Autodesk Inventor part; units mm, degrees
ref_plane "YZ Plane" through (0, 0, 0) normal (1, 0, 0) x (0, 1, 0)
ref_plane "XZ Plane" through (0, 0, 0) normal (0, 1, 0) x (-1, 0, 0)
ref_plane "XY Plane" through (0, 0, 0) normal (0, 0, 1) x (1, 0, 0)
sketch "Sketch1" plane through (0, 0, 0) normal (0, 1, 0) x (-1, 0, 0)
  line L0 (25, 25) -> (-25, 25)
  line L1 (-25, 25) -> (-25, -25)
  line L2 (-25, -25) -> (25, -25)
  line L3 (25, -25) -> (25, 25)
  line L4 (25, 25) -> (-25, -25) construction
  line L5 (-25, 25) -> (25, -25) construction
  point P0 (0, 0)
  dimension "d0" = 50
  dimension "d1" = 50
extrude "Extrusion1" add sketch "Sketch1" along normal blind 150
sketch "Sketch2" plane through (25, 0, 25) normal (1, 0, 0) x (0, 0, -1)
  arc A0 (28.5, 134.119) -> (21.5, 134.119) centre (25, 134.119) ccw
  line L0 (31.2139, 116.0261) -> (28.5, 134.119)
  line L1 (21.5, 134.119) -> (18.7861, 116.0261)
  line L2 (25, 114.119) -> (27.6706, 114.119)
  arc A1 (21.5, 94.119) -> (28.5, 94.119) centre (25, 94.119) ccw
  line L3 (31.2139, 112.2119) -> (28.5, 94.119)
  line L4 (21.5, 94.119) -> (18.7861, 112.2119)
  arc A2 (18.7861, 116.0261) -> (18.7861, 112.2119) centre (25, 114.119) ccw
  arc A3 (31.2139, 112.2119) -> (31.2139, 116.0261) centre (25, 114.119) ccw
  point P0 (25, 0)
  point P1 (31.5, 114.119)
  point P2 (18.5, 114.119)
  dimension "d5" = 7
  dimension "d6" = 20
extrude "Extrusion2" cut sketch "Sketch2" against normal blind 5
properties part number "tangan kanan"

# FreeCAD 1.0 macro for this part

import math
import FreeCAD as App
import Part
import Sketcher

V = App.Vector
Q = App.Units.Quantity

doc = App.newDocument("Part")
params = doc.addObject("Spreadsheet::Sheet", "Params")
for row, (alias, value) in enumerate([
    ("sketch1_width", "50 mm"),
    ("pad1_length", "150 mm"),
    ("sketch2_radius", "3.5 mm"),
    ("sketch2_radius2", "6.5 mm"),
    ("pocket1_length", "5 mm"),
], start=1):
    params.set(f"A{row}", alias)
    params.set(f"B{row}", "=" + value)
    params.setAlias(f"B{row}", alias)

body = doc.addObject("PartDesign::Body", "Body")

# Sketch on XZ plane
sketch1 = body.newObject("Sketcher::SketchObject", "Sketch")
sketch1.AttachmentSupport = (doc.getObject("XZ_Plane"), [""])
sketch1.MapMode = "FlatFace"
sketch1.addGeometry(Part.LineSegment(V(-25, -25, 0), V(-25, 25, 0)), False)
sketch1.addGeometry(Part.LineSegment(V(-25, 25, 0), V(25, 25, 0)), False)
sketch1.addGeometry(Part.LineSegment(V(25, 25, 0), V(25, -25, 0)), False)
sketch1.addGeometry(Part.LineSegment(V(25, -25, 0), V(-25, -25, 0)), False)
sketch1.addConstraint(Sketcher.Constraint("Coincident", 0, 2, 1, 1))
sketch1.addConstraint(Sketcher.Constraint("Coincident", 1, 2, 2, 1))
sketch1.addConstraint(Sketcher.Constraint("Coincident", 2, 2, 3, 1))
sketch1.addConstraint(Sketcher.Constraint("Coincident", 3, 2, 0, 1))
sketch1.addConstraint(Sketcher.Constraint("Vertical", 0))
sketch1.addConstraint(Sketcher.Constraint("Horizontal", 1))
sketch1.addConstraint(Sketcher.Constraint("Vertical", 2))
sketch1.addConstraint(Sketcher.Constraint("Horizontal", 3))
sketch1.addConstraint(Sketcher.Constraint("Symmetric", 0, 2, 2, 2, -1, 1))
sketch1.addConstraint(Sketcher.Constraint("Equal", 3, 0))
sketch1.addConstraint(Sketcher.Constraint("DistanceX", 1, 1, 1, 2, 50.0))
sketch1.setExpression("Constraints[10]", "Params.sketch1_width")
pad1 = body.newObject("PartDesign::Pad", "Pad")
pad1.Profile = sketch1
pad1.setExpression("Length", "Params.pad1_length")
pad1.Reversed = True

# Sketch on YZ plane
sketch2 = body.newObject("Sketcher::SketchObject", "Sketch001")
sketch2.AttachmentSupport = (doc.getObject("YZ_Plane"), [""])
sketch2.MapMode = "FlatFace"
sketch2.AttachmentOffset = App.Placement(V(0, 0, 25), App.Rotation())
sketch2.addGeometry(Part.LineSegment(V(116, -6.2, 0), V(134.1, -3.5, 0)), False)
sketch2.addGeometry(Part.ArcOfCircle(Part.Circle(V(134.1, 0, 0), V(0, 0, 1), 3.5), math.radians(-90), math.radians(90)), False)
sketch2.addGeometry(Part.LineSegment(V(134.1, 3.5, 0), V(116, 6.2, 0)), False)
sketch2.addGeometry(Part.ArcOfCircle(Part.Circle(V(114.1, 0, 0), V(0, 0, 1), 6.5), math.radians(73), math.radians(107)), False)
sketch2.addGeometry(Part.LineSegment(V(112.2, 6.2, 0), V(94.1, 3.5, 0)), False)
sketch2.addGeometry(Part.ArcOfCircle(Part.Circle(V(94.1, 0, 0), V(0, 0, 1), 3.5), math.radians(90), math.radians(270)), False)
sketch2.addGeometry(Part.LineSegment(V(94.1, -3.5, 0), V(112.2, -6.2, 0)), False)
sketch2.addGeometry(Part.ArcOfCircle(Part.Circle(V(114.1, 0, 0), V(0, 0, 1), 6.5), math.radians(-107), math.radians(-73)), False)
sketch2.addConstraint(Sketcher.Constraint("Coincident", 0, 2, 1, 1))
sketch2.addConstraint(Sketcher.Constraint("Coincident", 1, 2, 2, 1))
sketch2.addConstraint(Sketcher.Constraint("Coincident", 2, 2, 3, 1))
sketch2.addConstraint(Sketcher.Constraint("Coincident", 3, 2, 4, 1))
sketch2.addConstraint(Sketcher.Constraint("Coincident", 4, 2, 5, 1))
sketch2.addConstraint(Sketcher.Constraint("Coincident", 5, 2, 6, 1))
sketch2.addConstraint(Sketcher.Constraint("Coincident", 6, 2, 7, 1))
sketch2.addConstraint(Sketcher.Constraint("Coincident", 7, 2, 0, 1))
sketch2.addConstraint(Sketcher.Constraint("Coincident", 7, 3, 3, 3))
sketch2.addConstraint(Sketcher.Constraint("Equal", 1, 5))
sketch2.addConstraint(Sketcher.Constraint("Equal", 3, 7))
sketch2.addConstraint(Sketcher.Constraint("Symmetric", 0, 2, 1, 2, -1))
sketch2.addConstraint(Sketcher.Constraint("Symmetric", 4, 2, 5, 2, -1))
sketch2.addConstraint(Sketcher.Constraint("Symmetric", 3, 2, 6, 2, -1))
sketch2.addConstraint(Sketcher.Constraint("Parallel", 0, 4))
sketch2.addConstraint(Sketcher.Constraint("Parallel", 2, 6))
sketch2.addConstraint(Sketcher.Constraint("Horizontal", 2, 2, 3, 2))
sketch2.addConstraint(Sketcher.Constraint("Vertical", 1, 3, 0, 2))
sketch2.addConstraint(Sketcher.Constraint("Vertical", 5, 3, 4, 2))
sketch2.addConstraint(Sketcher.Constraint("Radius", 1, 3.5))
sketch2.addConstraint(Sketcher.Constraint("DistanceX", 3, 3, 1, 3, 20.0))
sketch2.addConstraint(Sketcher.Constraint("Radius", 3, 6.5))
sketch2.addConstraint(Sketcher.Constraint("Angle", 0, Q("8.5307 deg")))
sketch2.addConstraint(Sketcher.Constraint("DistanceX", -1, 1, 1, 3, 134.119))
sketch2.setExpression("Constraints[19]", "Params.sketch2_radius")
sketch2.setExpression("Constraints[21]", "Params.sketch2_radius2")
pocket1 = body.newObject("PartDesign::Pocket", "Pocket")
pocket1.Profile = sketch2
pocket1.setExpression("Length", "Params.pocket1_length")

doc.recompute()
